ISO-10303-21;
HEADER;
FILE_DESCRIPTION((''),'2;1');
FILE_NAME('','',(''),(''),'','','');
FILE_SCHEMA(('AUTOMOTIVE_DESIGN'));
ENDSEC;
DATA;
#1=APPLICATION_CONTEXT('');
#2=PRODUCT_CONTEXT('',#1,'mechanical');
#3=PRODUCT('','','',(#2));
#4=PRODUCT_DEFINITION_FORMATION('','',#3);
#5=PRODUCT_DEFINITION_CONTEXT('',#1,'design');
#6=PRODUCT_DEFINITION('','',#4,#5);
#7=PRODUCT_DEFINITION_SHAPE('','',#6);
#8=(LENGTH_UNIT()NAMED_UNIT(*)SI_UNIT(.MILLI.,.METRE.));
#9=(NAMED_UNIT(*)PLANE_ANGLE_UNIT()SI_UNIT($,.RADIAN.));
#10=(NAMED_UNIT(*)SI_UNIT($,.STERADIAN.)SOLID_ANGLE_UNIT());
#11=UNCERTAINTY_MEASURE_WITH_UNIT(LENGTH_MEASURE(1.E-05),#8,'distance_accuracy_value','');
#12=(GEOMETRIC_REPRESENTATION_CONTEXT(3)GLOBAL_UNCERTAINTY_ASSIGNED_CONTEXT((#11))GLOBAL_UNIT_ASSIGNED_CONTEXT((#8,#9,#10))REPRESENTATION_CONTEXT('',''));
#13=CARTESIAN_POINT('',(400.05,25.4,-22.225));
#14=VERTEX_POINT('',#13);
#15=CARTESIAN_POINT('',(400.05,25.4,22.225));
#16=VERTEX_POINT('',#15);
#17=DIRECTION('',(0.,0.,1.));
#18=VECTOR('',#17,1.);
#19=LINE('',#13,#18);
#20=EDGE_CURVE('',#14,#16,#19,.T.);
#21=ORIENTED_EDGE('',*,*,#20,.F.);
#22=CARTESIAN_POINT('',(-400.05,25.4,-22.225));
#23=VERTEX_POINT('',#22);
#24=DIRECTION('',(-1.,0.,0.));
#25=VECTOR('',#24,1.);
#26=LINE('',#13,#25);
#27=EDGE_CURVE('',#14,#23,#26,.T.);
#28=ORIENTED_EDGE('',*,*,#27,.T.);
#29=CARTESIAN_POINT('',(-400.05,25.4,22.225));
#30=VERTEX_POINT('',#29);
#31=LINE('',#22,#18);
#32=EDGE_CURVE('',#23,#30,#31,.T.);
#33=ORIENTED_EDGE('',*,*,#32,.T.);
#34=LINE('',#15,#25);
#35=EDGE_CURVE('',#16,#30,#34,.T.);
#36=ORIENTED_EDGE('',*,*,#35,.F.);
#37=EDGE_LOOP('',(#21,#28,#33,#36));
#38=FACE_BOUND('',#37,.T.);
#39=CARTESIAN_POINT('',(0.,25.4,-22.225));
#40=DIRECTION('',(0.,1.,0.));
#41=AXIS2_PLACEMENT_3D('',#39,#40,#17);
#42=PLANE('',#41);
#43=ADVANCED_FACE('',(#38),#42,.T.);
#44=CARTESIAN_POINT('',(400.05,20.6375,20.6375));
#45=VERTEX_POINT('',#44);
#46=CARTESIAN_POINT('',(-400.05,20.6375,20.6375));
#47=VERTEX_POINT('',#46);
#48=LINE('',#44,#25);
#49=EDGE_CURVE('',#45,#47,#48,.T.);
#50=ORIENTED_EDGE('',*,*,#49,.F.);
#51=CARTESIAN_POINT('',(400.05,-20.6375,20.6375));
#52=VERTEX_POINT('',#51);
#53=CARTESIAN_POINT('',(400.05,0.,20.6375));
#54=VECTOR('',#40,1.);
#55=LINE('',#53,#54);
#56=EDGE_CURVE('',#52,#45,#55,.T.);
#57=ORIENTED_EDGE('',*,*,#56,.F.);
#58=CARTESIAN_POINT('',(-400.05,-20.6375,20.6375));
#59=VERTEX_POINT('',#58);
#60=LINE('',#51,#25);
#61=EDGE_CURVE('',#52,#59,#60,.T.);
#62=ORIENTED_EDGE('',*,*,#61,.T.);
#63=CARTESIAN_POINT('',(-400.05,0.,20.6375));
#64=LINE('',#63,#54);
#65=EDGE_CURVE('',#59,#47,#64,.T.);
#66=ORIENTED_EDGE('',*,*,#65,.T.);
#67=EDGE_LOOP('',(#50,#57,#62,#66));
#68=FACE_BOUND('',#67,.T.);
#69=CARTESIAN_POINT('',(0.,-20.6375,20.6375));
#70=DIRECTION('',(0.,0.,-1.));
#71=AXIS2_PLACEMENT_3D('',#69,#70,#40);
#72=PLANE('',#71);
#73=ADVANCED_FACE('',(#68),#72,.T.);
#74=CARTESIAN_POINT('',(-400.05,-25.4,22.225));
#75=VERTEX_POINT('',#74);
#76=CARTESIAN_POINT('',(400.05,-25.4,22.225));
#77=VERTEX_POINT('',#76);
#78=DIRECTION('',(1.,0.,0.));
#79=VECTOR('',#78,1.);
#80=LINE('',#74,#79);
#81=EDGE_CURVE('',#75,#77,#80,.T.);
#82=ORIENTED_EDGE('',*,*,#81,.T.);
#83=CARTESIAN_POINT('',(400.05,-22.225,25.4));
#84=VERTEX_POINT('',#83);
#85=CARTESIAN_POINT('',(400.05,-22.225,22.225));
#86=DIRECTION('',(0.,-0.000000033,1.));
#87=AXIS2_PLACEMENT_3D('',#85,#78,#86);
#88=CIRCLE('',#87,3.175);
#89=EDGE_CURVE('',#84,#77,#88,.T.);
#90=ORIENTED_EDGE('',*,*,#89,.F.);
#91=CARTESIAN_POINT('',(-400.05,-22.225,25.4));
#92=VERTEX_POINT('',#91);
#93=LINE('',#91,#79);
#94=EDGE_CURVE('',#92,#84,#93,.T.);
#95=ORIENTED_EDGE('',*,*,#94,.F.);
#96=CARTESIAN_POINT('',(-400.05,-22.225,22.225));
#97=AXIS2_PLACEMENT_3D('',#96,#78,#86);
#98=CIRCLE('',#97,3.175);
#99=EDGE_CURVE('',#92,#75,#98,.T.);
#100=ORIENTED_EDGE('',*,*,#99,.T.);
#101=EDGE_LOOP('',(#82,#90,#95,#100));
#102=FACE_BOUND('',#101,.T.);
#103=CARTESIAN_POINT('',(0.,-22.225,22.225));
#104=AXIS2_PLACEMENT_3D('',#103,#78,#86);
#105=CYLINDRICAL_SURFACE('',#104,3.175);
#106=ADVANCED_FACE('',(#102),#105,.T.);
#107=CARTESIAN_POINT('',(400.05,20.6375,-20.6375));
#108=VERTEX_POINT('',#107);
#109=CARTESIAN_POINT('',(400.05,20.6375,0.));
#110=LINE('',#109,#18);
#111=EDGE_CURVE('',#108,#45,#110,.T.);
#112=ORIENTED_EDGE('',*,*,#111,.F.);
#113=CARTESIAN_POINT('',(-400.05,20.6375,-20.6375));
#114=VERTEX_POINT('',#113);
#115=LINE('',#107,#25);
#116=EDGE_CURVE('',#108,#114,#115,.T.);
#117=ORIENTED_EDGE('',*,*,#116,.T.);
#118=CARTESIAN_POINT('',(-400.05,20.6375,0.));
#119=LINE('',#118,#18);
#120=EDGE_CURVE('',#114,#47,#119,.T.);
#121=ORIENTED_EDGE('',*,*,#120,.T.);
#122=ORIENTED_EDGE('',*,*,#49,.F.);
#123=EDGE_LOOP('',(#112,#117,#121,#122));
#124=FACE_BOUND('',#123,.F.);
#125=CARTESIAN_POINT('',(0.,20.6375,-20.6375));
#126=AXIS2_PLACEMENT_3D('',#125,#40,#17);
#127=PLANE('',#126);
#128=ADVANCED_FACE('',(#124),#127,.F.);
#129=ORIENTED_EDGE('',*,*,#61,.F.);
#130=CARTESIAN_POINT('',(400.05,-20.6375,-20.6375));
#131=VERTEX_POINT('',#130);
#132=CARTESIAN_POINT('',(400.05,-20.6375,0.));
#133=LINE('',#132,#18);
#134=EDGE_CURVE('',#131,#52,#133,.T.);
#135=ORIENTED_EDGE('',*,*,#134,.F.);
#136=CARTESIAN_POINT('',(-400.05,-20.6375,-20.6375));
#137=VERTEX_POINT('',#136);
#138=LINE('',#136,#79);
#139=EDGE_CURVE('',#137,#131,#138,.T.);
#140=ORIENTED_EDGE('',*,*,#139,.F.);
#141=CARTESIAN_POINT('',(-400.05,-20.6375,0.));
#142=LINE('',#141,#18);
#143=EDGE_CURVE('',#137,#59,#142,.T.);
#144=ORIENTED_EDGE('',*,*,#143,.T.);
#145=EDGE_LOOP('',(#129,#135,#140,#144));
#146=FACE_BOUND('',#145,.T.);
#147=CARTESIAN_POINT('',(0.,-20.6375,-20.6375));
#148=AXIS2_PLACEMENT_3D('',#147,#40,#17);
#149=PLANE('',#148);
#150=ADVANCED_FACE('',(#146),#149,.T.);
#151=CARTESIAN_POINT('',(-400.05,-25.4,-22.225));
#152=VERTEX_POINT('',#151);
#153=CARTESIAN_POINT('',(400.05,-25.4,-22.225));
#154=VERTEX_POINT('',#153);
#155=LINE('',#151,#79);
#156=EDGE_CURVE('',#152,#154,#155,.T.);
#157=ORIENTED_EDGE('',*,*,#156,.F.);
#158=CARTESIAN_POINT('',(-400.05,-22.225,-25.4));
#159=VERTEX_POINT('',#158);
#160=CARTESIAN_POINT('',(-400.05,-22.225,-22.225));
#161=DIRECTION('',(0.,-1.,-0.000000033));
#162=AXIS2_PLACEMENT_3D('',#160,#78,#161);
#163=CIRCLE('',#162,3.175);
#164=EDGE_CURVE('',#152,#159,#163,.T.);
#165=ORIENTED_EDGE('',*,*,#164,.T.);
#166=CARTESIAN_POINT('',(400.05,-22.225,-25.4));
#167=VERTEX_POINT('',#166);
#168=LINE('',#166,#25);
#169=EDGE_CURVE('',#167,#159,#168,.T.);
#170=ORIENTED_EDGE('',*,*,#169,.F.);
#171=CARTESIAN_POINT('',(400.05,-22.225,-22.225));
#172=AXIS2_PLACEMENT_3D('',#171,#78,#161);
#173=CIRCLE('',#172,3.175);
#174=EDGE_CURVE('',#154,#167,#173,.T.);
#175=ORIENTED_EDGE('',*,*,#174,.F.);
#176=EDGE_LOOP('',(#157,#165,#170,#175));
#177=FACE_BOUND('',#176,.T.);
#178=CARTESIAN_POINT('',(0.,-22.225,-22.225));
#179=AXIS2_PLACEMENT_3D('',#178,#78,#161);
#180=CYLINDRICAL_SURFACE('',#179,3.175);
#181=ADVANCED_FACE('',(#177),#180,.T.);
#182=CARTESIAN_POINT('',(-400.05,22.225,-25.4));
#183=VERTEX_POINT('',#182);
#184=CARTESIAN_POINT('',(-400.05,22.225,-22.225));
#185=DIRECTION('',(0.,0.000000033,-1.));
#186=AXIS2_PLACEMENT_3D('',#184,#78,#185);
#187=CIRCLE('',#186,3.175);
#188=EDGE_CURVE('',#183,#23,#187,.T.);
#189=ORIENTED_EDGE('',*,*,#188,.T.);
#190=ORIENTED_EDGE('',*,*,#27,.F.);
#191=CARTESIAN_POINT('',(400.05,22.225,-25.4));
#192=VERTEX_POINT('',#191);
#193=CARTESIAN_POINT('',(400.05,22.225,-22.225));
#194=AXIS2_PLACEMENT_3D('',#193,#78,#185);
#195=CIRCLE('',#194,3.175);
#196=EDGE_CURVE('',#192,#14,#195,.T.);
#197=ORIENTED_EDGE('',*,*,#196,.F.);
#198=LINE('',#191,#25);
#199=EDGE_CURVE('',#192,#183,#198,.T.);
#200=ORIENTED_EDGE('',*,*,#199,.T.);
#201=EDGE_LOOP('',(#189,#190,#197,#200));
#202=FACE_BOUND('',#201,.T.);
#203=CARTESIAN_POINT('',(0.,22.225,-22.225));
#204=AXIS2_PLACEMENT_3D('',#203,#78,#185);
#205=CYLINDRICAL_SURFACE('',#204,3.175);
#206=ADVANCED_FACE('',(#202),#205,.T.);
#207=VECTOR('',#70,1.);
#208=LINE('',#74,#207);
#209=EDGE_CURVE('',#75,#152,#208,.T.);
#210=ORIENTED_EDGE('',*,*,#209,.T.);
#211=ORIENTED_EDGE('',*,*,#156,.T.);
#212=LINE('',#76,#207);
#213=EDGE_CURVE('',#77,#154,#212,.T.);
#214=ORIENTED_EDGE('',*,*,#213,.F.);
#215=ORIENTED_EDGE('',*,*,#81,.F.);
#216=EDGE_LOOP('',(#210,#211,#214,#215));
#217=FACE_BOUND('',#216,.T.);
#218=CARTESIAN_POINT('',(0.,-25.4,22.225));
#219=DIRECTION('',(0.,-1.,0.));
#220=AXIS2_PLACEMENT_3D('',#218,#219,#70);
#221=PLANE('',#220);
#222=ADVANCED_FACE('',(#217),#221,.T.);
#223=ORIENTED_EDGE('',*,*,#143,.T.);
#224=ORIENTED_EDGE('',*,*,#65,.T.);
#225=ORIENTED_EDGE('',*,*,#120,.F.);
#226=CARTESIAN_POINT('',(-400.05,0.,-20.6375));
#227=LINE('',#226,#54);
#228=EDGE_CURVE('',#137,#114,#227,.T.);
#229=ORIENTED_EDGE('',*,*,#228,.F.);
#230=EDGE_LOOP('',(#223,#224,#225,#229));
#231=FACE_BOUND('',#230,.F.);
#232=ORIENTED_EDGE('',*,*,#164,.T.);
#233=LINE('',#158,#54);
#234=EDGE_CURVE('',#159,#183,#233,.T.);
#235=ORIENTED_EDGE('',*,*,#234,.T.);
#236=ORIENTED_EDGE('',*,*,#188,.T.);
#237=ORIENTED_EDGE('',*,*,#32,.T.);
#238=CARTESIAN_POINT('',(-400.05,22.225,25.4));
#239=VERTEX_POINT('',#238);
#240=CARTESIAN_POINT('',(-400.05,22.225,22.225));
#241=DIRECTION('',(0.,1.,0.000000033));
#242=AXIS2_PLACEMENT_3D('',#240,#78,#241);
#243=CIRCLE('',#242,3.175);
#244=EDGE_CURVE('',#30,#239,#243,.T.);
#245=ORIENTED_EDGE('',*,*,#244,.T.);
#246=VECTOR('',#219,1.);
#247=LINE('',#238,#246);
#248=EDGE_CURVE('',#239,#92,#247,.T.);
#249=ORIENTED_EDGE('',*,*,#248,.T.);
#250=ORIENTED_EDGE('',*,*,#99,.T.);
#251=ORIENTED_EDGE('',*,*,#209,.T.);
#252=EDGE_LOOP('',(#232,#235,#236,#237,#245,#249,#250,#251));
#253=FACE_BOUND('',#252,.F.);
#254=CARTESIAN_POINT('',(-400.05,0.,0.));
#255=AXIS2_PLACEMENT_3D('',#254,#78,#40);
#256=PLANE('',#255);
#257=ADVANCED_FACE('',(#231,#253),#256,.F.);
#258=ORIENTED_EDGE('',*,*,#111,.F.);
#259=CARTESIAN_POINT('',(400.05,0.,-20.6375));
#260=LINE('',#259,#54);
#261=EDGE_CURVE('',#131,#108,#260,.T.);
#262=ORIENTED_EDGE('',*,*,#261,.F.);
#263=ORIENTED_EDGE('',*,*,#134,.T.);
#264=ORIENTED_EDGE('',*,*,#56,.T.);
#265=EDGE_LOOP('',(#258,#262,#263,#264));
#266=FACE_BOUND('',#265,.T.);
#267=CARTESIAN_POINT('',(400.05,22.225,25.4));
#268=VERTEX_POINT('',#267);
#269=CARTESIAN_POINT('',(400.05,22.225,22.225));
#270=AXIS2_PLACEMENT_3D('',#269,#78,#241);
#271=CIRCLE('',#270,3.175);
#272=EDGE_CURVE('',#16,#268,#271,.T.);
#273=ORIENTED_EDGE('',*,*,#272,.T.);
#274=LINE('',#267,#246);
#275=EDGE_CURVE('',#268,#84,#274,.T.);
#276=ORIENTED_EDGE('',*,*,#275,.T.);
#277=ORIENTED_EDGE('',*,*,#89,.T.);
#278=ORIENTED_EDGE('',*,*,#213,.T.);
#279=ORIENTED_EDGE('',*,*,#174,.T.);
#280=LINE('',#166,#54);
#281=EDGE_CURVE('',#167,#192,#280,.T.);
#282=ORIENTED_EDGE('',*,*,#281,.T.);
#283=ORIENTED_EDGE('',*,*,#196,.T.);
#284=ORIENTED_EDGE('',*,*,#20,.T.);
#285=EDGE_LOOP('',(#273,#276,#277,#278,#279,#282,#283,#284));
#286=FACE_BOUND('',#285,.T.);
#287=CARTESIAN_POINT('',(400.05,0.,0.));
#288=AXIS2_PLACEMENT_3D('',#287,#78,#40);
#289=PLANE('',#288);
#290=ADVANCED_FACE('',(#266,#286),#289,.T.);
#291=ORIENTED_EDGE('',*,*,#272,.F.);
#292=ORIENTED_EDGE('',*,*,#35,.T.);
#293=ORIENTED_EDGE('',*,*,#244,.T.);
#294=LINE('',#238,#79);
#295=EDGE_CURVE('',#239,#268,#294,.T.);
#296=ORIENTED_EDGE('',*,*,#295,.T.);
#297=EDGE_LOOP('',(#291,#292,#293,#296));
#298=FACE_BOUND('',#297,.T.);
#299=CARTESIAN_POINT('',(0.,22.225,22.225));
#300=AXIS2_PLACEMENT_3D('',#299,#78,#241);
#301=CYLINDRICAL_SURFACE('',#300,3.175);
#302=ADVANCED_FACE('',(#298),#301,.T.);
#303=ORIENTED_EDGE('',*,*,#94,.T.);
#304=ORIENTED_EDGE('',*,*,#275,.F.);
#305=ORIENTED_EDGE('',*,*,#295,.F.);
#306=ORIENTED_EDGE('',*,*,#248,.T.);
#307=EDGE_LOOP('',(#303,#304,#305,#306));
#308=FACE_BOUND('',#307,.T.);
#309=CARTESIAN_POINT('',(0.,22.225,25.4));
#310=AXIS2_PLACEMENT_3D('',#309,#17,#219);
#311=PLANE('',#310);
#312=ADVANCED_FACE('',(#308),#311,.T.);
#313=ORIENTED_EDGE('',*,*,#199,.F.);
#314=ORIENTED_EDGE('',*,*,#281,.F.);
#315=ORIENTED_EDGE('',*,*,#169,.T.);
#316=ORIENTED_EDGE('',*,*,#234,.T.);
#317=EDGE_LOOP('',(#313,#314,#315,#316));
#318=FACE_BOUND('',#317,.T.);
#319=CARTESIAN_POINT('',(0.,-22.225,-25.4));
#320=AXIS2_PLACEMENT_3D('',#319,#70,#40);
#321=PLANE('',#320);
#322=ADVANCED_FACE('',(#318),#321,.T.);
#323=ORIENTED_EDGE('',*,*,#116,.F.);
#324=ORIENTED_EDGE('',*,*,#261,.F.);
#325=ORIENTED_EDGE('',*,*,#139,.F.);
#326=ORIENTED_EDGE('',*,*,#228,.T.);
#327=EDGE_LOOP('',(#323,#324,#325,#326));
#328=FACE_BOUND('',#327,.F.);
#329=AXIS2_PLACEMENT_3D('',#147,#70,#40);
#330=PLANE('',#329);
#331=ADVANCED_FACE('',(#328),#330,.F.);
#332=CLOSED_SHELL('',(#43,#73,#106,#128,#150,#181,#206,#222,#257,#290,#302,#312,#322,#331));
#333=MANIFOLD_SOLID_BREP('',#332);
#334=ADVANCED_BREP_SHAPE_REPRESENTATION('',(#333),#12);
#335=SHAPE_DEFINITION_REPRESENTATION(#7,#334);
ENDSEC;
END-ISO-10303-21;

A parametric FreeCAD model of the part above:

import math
import FreeCAD as App
import Part
import Sketcher

V = App.Vector
Q = App.Units.Quantity


def add_polygon(sketch, points):
    """Adds a closed chain of lines whose ends are joined by coincident constraints."""
    first, n = sketch.GeometryCount, len(points)
    for a, b in zip(points, points[1:] + points[:1]):
        sketch.addGeometry(Part.LineSegment(App.Vector(*a, 0), App.Vector(*b, 0)), False)
    for i in range(n):
        sketch.addConstraint(Sketcher.Constraint("Coincident", first + i, 2, first + (i + 1) % n, 1))

doc = App.newDocument("Part")
body = doc.addObject("PartDesign::Body", "Body")

# Sketch on YZ plane
sketch1 = body.newObject("Sketcher::SketchObject", "Sketch")
sketch1.AttachmentSupport = (doc.getObject("YZ_Plane"), [""])
sketch1.MapMode = "FlatFace"
sketch1.addGeometry(Part.ArcOfCircle(Part.Circle(V(22.225, 22.225, 0), V(0, 0, 1), 3.175), math.radians(0.000002), math.radians(89.999998)), False)  # 0
sketch1.addGeometry(Part.LineSegment(V(22.225, 25.4, 0), V(-22.225, 25.4, 0)), False)  # 1
sketch1.addGeometry(Part.ArcOfCircle(Part.Circle(V(-22.225, 22.225, 0), V(0, 0, 1), 3.175), math.radians(90.000002), math.radians(179.999998)), False)  # 2
sketch1.addGeometry(Part.LineSegment(V(-25.4, 22.225, 0), V(-25.4, -22.225, 0)), False)  # 3
sketch1.addGeometry(Part.ArcOfCircle(Part.Circle(V(-22.225, -22.225, 0), V(0, 0, 1), 3.175), math.radians(-179.999998), math.radians(-90.000002)), False)  # 4
sketch1.addGeometry(Part.LineSegment(V(-22.225, -25.4, 0), V(22.225, -25.4, 0)), False)  # 5
sketch1.addGeometry(Part.ArcOfCircle(Part.Circle(V(22.225, -22.225, 0), V(0, 0, 1), 3.175), math.radians(-89.999998), math.radians(-0.000002)), False)  # 6
sketch1.addGeometry(Part.LineSegment(V(25.4, -22.225, 0), V(25.4, 22.225, 0)), False)  # 7
add_polygon(sketch1, [(20.6375, -20.6375), (-20.6375, -20.6375), (-20.6375, 20.6375), (20.6375, 20.6375)])  # lines 8-11
sketch1.addConstraint([
    Sketcher.Constraint("Tangent", 0, 2, 1, 1),
    Sketcher.Constraint("Tangent", 1, 2, 2, 1),
    Sketcher.Constraint("Tangent", 2, 2, 3, 1),
    Sketcher.Constraint("Tangent", 3, 2, 4, 1),
    Sketcher.Constraint("Tangent", 4, 2, 5, 1),
    Sketcher.Constraint("Tangent", 5, 2, 6, 1),
    Sketcher.Constraint("Tangent", 6, 2, 7, 1),
    Sketcher.Constraint("Tangent", 7, 2, 0, 1),
    Sketcher.Constraint("Horizontal", 1),
    Sketcher.Constraint("Vertical", 3),
    Sketcher.Constraint("Horizontal", 5),
    Sketcher.Constraint("Vertical", 7),
    Sketcher.Constraint("Horizontal", 8),
    Sketcher.Constraint("Vertical", 9),
    Sketcher.Constraint("Horizontal", 10),
    Sketcher.Constraint("Vertical", 11),
    Sketcher.Constraint("Equal", 0, 2),
    Sketcher.Constraint("Equal", 2, 4),
    Sketcher.Constraint("Equal", 4, 6),
    Sketcher.Constraint("Symmetric", 0, 3, 4, 3, -1, 1),
    Sketcher.Constraint("Symmetric", 8, 2, 10, 2, -1, 1),
    Sketcher.Constraint("Equal", 5, 3),
    Sketcher.Constraint("Equal", 10, 9),
    Sketcher.Constraint("DistanceY", -1, 1, 0, 2, Q("1 in")),
    Sketcher.Constraint("Radius", 0, Q("0.125 in")),
    Sketcher.Constraint("DistanceX", 8, 2, 8, 1, Q("1.625 in")),
])
pad1 = body.newObject("PartDesign::Pad", "Pad")
pad1.Profile = sketch1
pad1.Length = Q("31.5 in")
pad1.Midplane = True

doc.recompute()
